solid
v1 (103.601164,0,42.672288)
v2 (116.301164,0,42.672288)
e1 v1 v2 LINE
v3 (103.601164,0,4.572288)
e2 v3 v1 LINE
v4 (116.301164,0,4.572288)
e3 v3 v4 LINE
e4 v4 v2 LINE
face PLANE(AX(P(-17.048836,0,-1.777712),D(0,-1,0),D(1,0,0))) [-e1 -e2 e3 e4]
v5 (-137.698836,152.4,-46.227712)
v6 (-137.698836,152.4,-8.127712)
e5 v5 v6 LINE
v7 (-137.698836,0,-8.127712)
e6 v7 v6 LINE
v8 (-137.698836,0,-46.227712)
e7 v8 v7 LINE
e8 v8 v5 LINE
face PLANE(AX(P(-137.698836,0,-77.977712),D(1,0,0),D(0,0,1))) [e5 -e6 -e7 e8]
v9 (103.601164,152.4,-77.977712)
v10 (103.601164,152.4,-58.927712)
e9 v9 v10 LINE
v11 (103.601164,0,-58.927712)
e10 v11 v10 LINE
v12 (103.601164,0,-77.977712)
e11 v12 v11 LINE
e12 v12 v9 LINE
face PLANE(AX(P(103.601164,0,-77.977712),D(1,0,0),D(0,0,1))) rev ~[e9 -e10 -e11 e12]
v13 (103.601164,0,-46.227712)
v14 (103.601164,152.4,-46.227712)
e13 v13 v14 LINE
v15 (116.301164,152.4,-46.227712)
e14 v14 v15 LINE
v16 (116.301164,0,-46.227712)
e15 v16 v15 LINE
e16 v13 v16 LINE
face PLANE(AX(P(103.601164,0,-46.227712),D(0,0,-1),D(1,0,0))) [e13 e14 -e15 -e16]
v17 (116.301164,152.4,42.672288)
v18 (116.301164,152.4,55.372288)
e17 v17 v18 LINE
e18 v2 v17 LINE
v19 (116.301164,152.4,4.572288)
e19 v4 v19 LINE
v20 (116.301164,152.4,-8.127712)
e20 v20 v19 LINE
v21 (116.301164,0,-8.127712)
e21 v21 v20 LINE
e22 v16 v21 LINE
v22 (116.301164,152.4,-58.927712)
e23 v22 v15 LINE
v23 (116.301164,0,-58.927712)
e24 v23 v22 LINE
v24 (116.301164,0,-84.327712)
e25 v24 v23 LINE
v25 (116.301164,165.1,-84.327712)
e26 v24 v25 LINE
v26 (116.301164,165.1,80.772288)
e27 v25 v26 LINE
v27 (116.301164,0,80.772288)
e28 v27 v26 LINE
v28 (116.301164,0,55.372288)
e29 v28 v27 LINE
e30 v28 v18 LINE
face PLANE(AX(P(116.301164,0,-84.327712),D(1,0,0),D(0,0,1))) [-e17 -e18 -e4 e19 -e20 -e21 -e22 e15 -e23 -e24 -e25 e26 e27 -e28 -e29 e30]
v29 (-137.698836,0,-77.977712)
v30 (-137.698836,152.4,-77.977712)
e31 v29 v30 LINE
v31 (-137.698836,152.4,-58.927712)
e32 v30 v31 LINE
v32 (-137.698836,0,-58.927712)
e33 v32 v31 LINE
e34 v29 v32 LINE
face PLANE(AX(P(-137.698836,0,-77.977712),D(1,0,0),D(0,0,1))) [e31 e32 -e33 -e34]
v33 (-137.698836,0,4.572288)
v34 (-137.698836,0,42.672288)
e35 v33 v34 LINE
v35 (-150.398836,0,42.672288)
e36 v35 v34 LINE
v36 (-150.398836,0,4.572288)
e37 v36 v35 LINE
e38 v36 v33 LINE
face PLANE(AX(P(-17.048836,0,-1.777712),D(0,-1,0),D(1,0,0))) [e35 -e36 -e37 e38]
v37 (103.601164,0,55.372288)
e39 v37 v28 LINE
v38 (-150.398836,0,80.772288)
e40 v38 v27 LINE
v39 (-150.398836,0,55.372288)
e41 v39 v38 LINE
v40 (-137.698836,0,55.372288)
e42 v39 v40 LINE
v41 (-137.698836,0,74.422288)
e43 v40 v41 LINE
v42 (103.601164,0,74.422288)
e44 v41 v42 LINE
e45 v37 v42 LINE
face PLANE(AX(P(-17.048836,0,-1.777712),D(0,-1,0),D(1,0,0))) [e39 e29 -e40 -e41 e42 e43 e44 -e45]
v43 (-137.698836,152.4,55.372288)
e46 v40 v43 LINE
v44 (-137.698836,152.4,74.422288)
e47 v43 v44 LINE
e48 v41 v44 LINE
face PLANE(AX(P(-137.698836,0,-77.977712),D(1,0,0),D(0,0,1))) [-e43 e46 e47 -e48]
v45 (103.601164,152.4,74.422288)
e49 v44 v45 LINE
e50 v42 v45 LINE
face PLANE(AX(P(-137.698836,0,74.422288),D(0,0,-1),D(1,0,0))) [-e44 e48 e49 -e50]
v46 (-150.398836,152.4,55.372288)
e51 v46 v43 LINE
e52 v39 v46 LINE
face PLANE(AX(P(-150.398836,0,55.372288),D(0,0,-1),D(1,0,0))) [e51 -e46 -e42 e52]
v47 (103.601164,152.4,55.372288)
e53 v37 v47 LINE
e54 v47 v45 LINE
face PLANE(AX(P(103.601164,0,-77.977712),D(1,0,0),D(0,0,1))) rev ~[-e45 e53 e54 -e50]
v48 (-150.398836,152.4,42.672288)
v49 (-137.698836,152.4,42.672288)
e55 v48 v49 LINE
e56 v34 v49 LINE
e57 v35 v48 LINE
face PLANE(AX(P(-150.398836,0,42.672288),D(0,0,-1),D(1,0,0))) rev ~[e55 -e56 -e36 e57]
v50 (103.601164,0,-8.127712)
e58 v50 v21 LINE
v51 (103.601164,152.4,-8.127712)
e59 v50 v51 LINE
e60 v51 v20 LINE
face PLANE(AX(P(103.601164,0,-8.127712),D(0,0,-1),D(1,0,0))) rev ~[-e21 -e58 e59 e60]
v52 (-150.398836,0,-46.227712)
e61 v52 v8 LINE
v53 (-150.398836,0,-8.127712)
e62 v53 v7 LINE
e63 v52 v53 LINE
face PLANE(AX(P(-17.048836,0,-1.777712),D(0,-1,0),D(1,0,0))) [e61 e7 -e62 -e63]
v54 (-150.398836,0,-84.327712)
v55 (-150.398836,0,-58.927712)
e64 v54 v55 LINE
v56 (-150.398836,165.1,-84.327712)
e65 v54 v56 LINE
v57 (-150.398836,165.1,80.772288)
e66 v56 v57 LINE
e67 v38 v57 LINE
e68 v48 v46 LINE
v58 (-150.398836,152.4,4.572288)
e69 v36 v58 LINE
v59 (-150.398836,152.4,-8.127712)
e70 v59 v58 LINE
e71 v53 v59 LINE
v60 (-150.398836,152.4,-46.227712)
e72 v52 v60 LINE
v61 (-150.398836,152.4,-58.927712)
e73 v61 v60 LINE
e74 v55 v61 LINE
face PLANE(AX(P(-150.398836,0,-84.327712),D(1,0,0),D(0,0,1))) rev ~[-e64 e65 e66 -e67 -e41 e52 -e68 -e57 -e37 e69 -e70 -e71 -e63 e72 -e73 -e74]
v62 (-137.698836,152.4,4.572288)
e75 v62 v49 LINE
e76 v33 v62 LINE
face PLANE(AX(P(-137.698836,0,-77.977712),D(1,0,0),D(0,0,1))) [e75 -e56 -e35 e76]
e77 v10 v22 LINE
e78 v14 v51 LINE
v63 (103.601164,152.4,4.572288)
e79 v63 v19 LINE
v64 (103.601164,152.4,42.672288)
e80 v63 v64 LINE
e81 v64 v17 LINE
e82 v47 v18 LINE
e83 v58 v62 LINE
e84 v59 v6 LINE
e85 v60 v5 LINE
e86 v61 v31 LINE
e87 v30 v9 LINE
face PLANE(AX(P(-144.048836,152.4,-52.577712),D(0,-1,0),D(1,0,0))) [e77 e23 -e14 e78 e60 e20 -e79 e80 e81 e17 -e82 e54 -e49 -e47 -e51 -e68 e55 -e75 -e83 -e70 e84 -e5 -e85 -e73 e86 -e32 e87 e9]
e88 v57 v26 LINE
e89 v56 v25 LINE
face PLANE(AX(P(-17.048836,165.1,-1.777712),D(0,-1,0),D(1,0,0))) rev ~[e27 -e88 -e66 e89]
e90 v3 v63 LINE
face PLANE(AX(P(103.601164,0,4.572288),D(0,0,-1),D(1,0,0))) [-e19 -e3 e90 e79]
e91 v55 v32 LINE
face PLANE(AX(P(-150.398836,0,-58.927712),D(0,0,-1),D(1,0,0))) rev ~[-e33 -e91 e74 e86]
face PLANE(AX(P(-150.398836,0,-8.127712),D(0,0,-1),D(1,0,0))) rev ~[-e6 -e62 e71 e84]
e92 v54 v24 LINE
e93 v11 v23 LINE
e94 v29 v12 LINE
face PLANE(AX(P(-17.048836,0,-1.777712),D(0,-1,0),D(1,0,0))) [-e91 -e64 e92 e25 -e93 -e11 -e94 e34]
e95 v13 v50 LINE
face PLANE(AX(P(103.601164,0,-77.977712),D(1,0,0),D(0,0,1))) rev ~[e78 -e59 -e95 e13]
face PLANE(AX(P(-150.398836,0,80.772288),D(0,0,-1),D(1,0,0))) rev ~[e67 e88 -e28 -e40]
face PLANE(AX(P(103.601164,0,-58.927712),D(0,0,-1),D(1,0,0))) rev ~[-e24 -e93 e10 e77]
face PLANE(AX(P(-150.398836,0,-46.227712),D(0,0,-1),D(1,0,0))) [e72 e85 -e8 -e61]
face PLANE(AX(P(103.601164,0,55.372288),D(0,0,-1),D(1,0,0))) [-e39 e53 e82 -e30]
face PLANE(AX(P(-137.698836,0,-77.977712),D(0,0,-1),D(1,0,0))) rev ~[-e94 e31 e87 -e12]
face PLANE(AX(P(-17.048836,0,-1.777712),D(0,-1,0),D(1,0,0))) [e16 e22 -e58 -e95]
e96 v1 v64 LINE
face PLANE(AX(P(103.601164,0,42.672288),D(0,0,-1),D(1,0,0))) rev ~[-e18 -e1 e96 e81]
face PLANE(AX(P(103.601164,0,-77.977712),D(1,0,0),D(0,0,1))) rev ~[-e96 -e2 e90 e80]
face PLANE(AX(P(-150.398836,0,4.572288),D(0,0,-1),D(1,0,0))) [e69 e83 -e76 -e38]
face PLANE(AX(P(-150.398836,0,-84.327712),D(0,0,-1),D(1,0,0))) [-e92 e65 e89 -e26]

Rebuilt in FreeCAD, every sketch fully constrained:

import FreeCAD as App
import Part
import Sketcher
Q = App.Units.Quantity


def add_polygon(sketch, points):
    """Adds a closed chain of lines whose ends are joined by coincident constraints."""
    first, n = sketch.GeometryCount, len(points)
    for a, b in zip(points, points[1:] + points[:1]):
        sketch.addGeometry(Part.LineSegment(App.Vector(*a, 0), App.Vector(*b, 0)), False)
    for i in range(n):
        sketch.addConstraint(Sketcher.Constraint("Coincident", first + i, 2, first + (i + 1) % n, 1))

doc = App.newDocument("Part")
body = doc.addObject("PartDesign::Body", "Body")

# Sketch on XZ plane
sketch1 = doc.addObject("Sketcher::SketchObject", "Sketch")
body.addObject(sketch1)
sketch1.AttachmentSupport = (doc.XZ_Plane, [""])
sketch1.MapMode = "FlatFace"
add_polygon(sketch1, [(-150.398836, 80.772288), (-150.398836, -84.327712), (116.301164, -84.327712), (116.301164, 80.772288)])  # lines 0-3
sketch1.addConstraint(Sketcher.Constraint("Vertical", 0))
sketch1.addConstraint(Sketcher.Constraint("Horizontal", 1))
sketch1.addConstraint(Sketcher.Constraint("Vertical", 2))
sketch1.addConstraint(Sketcher.Constraint("Horizontal", 3))
sketch1.addConstraint(Sketcher.Constraint("DistanceX", 1, 1, 1, 2, Q("10.5 in")))
sketch1.addConstraint(Sketcher.Constraint("DistanceY", 0, 2, 0, 1, Q("6.5 in")))
sketch1.addConstraint(Sketcher.Constraint("DistanceY", -1, 1, 2, 2, 80.772288))
sketch1.addConstraint(Sketcher.Constraint("DistanceX", 0, 2, -1, 1, 150.398836))
pad1 = doc.addObject("PartDesign::Pad", "Pad")
body.addObject(pad1)
pad1.Profile = sketch1
pad1.Length = Q("6.5 in")
pad1.Reversed = True

# Sketch on XZ plane
sketch2 = doc.addObject("Sketcher::SketchObject", "Sketch001")
body.addObject(sketch2)
sketch2.AttachmentSupport = (doc.XZ_Plane, [""])
sketch2.MapMode = "FlatFace"
add_polygon(sketch2, [(-137.698836, 74.422288), (-137.698836, -77.977712), (103.601164, -77.977712), (103.601164, 74.422288)])  # lines 0-3
sketch2.addConstraint(Sketcher.Constraint("Vertical", 0))
sketch2.addConstraint(Sketcher.Constraint("Horizontal", 1))
sketch2.addConstraint(Sketcher.Constraint("Vertical", 2))
sketch2.addConstraint(Sketcher.Constraint("Horizontal", 3))
sketch2.addConstraint(Sketcher.Constraint("DistanceY", 0, 2, 0, 1, Q("6 in")))
sketch2.addConstraint(Sketcher.Constraint("DistanceX", 1, 1, 1, 2, Q("9.5 in")))
sketch2.addConstraint(Sketcher.Constraint("DistanceY", 0, 2, -1, 1, 77.977712))
sketch2.addConstraint(Sketcher.Constraint("DistanceX", 0, 2, -1, 1, 137.698836))
pocket1 = doc.addObject("PartDesign::Pocket", "Pocket")
body.addObject(pocket1)
pocket1.Profile = sketch2
pocket1.Length = Q("6 in")

# Sketch on XZ plane
sketch3 = doc.addObject("Sketcher::SketchObject", "Sketch002")
body.addObject(sketch3)
sketch3.AttachmentSupport = (doc.XZ_Plane, [""])
sketch3.MapMode = "FlatFace"
add_polygon(sketch3, [(-150.398836, -46.227712), (-150.398836, -58.927712), (-137.698836, -58.927712), (-137.698836, -46.227712)])  # lines 0-3
add_polygon(sketch3, [(-150.398836, 4.572288), (-150.398836, -8.127712), (-137.698836, -8.127712), (-137.698836, 4.572288)])  # lines 4-7
add_polygon(sketch3, [(-150.398836, 55.372288), (-150.398836, 42.672288), (-137.698836, 42.672288), (-137.698836, 55.372288)])  # lines 8-11
add_polygon(sketch3, [(103.601164, -46.227712), (103.601164, -58.927712), (116.301164, -58.927712), (116.301164, -46.227712)])  # lines 12-15
add_polygon(sketch3, [(103.601164, 4.572288), (103.601164, -8.127712), (116.301164, -8.127712), (116.301164, 4.572288)])  # lines 16-19
add_polygon(sketch3, [(103.601164, 55.372288), (103.601164, 42.672288), (116.301164, 42.672288), (116.301164, 55.372288)])  # lines 20-23
sketch3.addConstraint(Sketcher.Constraint("Vertical", 0))
sketch3.addConstraint(Sketcher.Constraint("Horizontal", 1))
sketch3.addConstraint(Sketcher.Constraint("Vertical", 2))
sketch3.addConstraint(Sketcher.Constraint("Horizontal", 3))
sketch3.addConstraint(Sketcher.Constraint("Vertical", 4))
sketch3.addConstraint(Sketcher.Constraint("Horizontal", 5))
sketch3.addConstraint(Sketcher.Constraint("Vertical", 6))
sketch3.addConstraint(Sketcher.Constraint("Horizontal", 7))
sketch3.addConstraint(Sketcher.Constraint("Vertical", 8))
sketch3.addConstraint(Sketcher.Constraint("Horizontal", 9))
sketch3.addConstraint(Sketcher.Constraint("Vertical", 10))
sketch3.addConstraint(Sketcher.Constraint("Horizontal", 11))
sketch3.addConstraint(Sketcher.Constraint("Vertical", 12))
sketch3.addConstraint(Sketcher.Constraint("Horizontal", 13))
sketch3.addConstraint(Sketcher.Constraint("Vertical", 14))
sketch3.addConstraint(Sketcher.Constraint("Horizontal", 15))
sketch3.addConstraint(Sketcher.Constraint("Vertical", 16))
sketch3.addConstraint(Sketcher.Constraint("Horizontal", 17))
sketch3.addConstraint(Sketcher.Constraint("Vertical", 18))
sketch3.addConstraint(Sketcher.Constraint("Horizontal", 19))
sketch3.addConstraint(Sketcher.Constraint("Vertical", 20))
sketch3.addConstraint(Sketcher.Constraint("Horizontal", 21))
sketch3.addConstraint(Sketcher.Constraint("Vertical", 22))
sketch3.addConstraint(Sketcher.Constraint("Horizontal", 23))
sketch3.addConstraint(Sketcher.Constraint("Horizontal", 1, 2, 12, 2))
sketch3.addConstraint(Sketcher.Constraint("Horizontal", 3, 2, 14, 2))
sketch3.addConstraint(Sketcher.Constraint("Horizontal", 5, 2, 16, 2))
sketch3.addConstraint(Sketcher.Constraint("Horizontal", 7, 2, 18, 2))
sketch3.addConstraint(Sketcher.Constraint("Horizontal", 9, 2, 20, 2))
sketch3.addConstraint(Sketcher.Constraint("Horizontal", 11, 2, 22, 2))
sketch3.addConstraint(Sketcher.Constraint("Vertical", 3, 2, 4, 2))
sketch3.addConstraint(Sketcher.Constraint("Vertical", 2, 2, 5, 2))
sketch3.addConstraint(Sketcher.Constraint("Vertical", 7, 2, 8, 2))
sketch3.addConstraint(Sketcher.Constraint("Vertical", 6, 2, 9, 2))
sketch3.addConstraint(Sketcher.Constraint("Vertical", 15, 2, 16, 2))
sketch3.addConstraint(Sketcher.Constraint("Vertical", 14, 2, 17, 2))
sketch3.addConstraint(Sketcher.Constraint("Vertical", 19, 2, 20, 2))
sketch3.addConstraint(Sketcher.Constraint("Vertical", 18, 2, 21, 2))
sketch3.addConstraint(Sketcher.Constraint("Equal", 11, 13))
sketch3.addConstraint(Sketcher.Constraint("Equal", 23, 0))
sketch3.addConstraint(Sketcher.Constraint("Equal", 2, 4))
sketch3.addConstraint(Sketcher.Constraint("Equal", 6, 8))
sketch3.addConstraint(Sketcher.Constraint("DistanceX", 1, 1, 1, 2, Q("0.5 in")))
sketch3.addConstraint(Sketcher.Constraint("DistanceY", 0, 2, 4, 2, Q("2 in")))
sketch3.addConstraint(Sketcher.Constraint("DistanceY", 4, 2, 8, 2, Q("2 in")))
sketch3.addConstraint(Sketcher.Constraint("DistanceX", 0, 2, 12, 2, Q("10 in")))
sketch3.addConstraint(Sketcher.Constraint("DistanceY", 2, 2, -1, 1, 46.227712))
sketch3.addConstraint(Sketcher.Constraint("DistanceX", 0, 2, -1, 1, 150.398836))
pocket2 = doc.addObject("PartDesign::Pocket", "Pocket001")
body.addObject(pocket2)
pocket2.Profile = sketch3
pocket2.Length = Q("6 in")

doc.recompute()
